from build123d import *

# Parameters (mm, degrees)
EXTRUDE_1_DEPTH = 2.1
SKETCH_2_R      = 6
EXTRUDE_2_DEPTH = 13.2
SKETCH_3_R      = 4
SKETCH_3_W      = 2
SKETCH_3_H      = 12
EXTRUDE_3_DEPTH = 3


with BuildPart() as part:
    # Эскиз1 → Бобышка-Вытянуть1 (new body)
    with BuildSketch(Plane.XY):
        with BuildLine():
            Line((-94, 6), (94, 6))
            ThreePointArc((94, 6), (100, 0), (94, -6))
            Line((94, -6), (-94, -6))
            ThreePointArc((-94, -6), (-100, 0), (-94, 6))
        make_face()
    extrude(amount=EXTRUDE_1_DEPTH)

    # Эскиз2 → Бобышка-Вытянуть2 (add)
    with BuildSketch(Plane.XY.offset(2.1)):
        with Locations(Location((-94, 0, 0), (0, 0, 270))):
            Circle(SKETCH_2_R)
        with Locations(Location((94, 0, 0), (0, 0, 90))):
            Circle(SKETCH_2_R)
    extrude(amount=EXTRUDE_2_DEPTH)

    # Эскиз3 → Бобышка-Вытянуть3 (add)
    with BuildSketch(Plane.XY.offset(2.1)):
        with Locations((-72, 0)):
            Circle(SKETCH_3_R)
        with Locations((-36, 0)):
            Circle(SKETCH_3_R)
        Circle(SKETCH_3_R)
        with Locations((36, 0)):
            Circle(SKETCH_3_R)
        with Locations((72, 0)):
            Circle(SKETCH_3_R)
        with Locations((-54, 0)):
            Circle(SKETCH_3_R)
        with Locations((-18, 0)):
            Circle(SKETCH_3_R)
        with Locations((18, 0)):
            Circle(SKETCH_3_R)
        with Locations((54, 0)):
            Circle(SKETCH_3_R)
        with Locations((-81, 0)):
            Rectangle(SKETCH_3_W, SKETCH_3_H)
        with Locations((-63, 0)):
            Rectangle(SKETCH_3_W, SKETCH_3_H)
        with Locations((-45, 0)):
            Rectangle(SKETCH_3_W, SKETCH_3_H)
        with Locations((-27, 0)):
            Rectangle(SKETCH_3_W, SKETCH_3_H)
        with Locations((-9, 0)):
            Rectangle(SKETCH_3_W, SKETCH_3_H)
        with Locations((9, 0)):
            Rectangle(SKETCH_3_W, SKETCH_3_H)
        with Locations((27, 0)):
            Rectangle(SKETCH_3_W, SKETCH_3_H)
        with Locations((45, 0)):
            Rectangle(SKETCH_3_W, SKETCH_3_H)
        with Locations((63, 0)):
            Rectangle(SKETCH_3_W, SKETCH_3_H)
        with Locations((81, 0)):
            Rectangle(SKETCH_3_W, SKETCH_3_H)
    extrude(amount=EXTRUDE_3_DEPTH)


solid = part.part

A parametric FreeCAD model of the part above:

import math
import FreeCAD as App
import Part
import Sketcher

doc = App.newDocument("Part")
body = doc.addObject("PartDesign::Body", "Body")

sketch1 = body.newObject("Sketcher::SketchObject", "Sketch")
sketch1.AttachmentSupport = (doc.getObject("XY_Plane"), [""])
sketch1.MapMode = "FlatFace"
sketch1.addGeometry([
    Part.LineSegment(App.Vector(94, 6, 0), App.Vector(-94, 6, 0)),
    Part.ArcOfCircle(Part.Circle(App.Vector(-94, 0, 0), App.Vector(0, 0, 1), 6), math.radians(90), math.radians(270)),
    Part.LineSegment(App.Vector(-94, -6, 0), App.Vector(94, -6, 0)),
    Part.ArcOfCircle(Part.Circle(App.Vector(94, 0, 0), App.Vector(0, 0, 1), 6), math.radians(-90), math.radians(90)),
], False)
sketch1.addConstraint([
    Sketcher.Constraint("Tangent", 0, 2, 1, 1),
    Sketcher.Constraint("Tangent", 1, 2, 2, 1),
    Sketcher.Constraint("Tangent", 2, 2, 3, 1),
    Sketcher.Constraint("Tangent", 3, 2, 0, 1),
    Sketcher.Constraint("Horizontal", 0),
    Sketcher.Constraint("Horizontal", 2),
    Sketcher.Constraint("Symmetric", 1, 3, 3, 3, -1, 1),
    Sketcher.Constraint("Radius", 1, 6.0),
    Sketcher.Constraint("DistanceX", 0, 2, 0, 1, 188.0),
])
pad1 = body.newObject("PartDesign::Pad", "Pad")
pad1.Profile = sketch1
pad1.Length = 2.1

sketch2 = body.newObject("Sketcher::SketchObject", "Sketch001")
sketch2.AttachmentSupport = (doc.getObject("XY_Plane"), [""])
sketch2.MapMode = "FlatFace"
sketch2.AttachmentOffset = App.Placement(App.Vector(0, 0, 2.1), App.Rotation())
sketch2.addGeometry([
    Part.Circle(App.Vector(-94, 0, 0), App.Vector(0, 0, 1), 6),
    Part.Circle(App.Vector(94, 0, 0), App.Vector(0, 0, 1), 6),
], False)
sketch2.addConstraint([
    Sketcher.Constraint("Equal", 0, 1),
    Sketcher.Constraint("Symmetric", 0, 3, 1, 3, -1, 1),
    Sketcher.Constraint("PointOnObject", 0, 3, -1),
    Sketcher.Constraint("Diameter", 0, 12.0),
    Sketcher.Constraint("DistanceX", 0, 3, -1, 1, 94.0),
])
pad2 = body.newObject("PartDesign::Pad", "Pad001")
pad2.Profile = sketch2
pad2.Length = 13.2

sketch3 = body.newObject("Sketcher::SketchObject", "Sketch002")
sketch3.AttachmentSupport = (doc.getObject("XY_Plane"), [""])
sketch3.MapMode = "FlatFace"
sketch3.AttachmentOffset = App.Placement(App.Vector(0, 0, 2.1), App.Rotation())
sketch3.addGeometry([
    Part.Circle(App.Vector(-72, 0, 0), App.Vector(0, 0, 1), 4),
    Part.Circle(App.Vector(-36, 0, 0), App.Vector(0, 0, 1), 4),
    Part.Circle(App.Vector(0, 0, 0), App.Vector(0, 0, 1), 4),
    Part.Circle(App.Vector(36, 0, 0), App.Vector(0, 0, 1), 4),
    Part.Circle(App.Vector(72, 0, 0), App.Vector(0, 0, 1), 4),
    Part.Circle(App.Vector(-54, 0, 0), App.Vector(0, 0, 1), 4),
    Part.Circle(App.Vector(-18, 0, 0), App.Vector(0, 0, 1), 4),
    Part.Circle(App.Vector(18, 0, 0), App.Vector(0, 0, 1), 4),
    Part.Circle(App.Vector(54, 0, 0), App.Vector(0, 0, 1), 4),
    Part.LineSegment(App.Vector(-82, 6, 0), App.Vector(-82, -6, 0)),
    Part.LineSegment(App.Vector(-82, -6, 0), App.Vector(-80, -6, 0)),
    Part.LineSegment(App.Vector(-80, -6, 0), App.Vector(-80, 6, 0)),
    Part.LineSegment(App.Vector(-80, 6, 0), App.Vector(-82, 6, 0)),
    Part.LineSegment(App.Vector(-64, 6, 0), App.Vector(-64, -6, 0)),
    Part.LineSegment(App.Vector(-64, -6, 0), App.Vector(-62, -6, 0)),
    Part.LineSegment(App.Vector(-62, -6, 0), App.Vector(-62, 6, 0)),
    Part.LineSegment(App.Vector(-62, 6, 0), App.Vector(-64, 6, 0)),
    Part.LineSegment(App.Vector(-46, 6, 0), App.Vector(-46, -6, 0)),
    Part.LineSegment(App.Vector(-46, -6, 0), App.Vector(-44, -6, 0)),
    Part.LineSegment(App.Vector(-44, -6, 0), App.Vector(-44, 6, 0)),
    Part.LineSegment(App.Vector(-44, 6, 0), App.Vector(-46, 6, 0)),
    Part.LineSegment(App.Vector(-28, 6, 0), App.Vector(-28, -6, 0)),
    Part.LineSegment(App.Vector(-28, -6, 0), App.Vector(-26, -6, 0)),
    Part.LineSegment(App.Vector(-26, -6, 0), App.Vector(-26, 6, 0)),
    Part.LineSegment(App.Vector(-26, 6, 0), App.Vector(-28, 6, 0)),
    Part.LineSegment(App.Vector(-10, 6, 0), App.Vector(-10, -6, 0)),
    Part.LineSegment(App.Vector(-10, -6, 0), App.Vector(-8, -6, 0)),
    Part.LineSegment(App.Vector(-8, -6, 0), App.Vector(-8, 6, 0)),
    Part.LineSegment(App.Vector(-8, 6, 0), App.Vector(-10, 6, 0)),
    Part.LineSegment(App.Vector(8, 6, 0), App.Vector(8, -6, 0)),
    Part.LineSegment(App.Vector(8, -6, 0), App.Vector(10, -6, 0)),
    Part.LineSegment(App.Vector(10, -6, 0), App.Vector(10, 6, 0)),
    Part.LineSegment(App.Vector(10, 6, 0), App.Vector(8, 6, 0)),
    Part.LineSegment(App.Vector(26, 6, 0), App.Vector(26, -6, 0)),
    Part.LineSegment(App.Vector(26, -6, 0), App.Vector(28, -6, 0)),
    Part.LineSegment(App.Vector(28, -6, 0), App.Vector(28, 6, 0)),
    Part.LineSegment(App.Vector(28, 6, 0), App.Vector(26, 6, 0)),
    Part.LineSegment(App.Vector(44, 6, 0), App.Vector(44, -6, 0)),
    Part.LineSegment(App.Vector(44, -6, 0), App.Vector(46, -6, 0)),
    Part.LineSegment(App.Vector(46, -6, 0), App.Vector(46, 6, 0)),
    Part.LineSegment(App.Vector(46, 6, 0), App.Vector(44, 6, 0)),
    Part.LineSegment(App.Vector(62, 6, 0), App.Vector(62, -6, 0)),
    Part.LineSegment(App.Vector(62, -6, 0), App.Vector(64, -6, 0)),
    Part.LineSegment(App.Vector(64, -6, 0), App.Vector(64, 6, 0)),
    Part.LineSegment(App.Vector(64, 6, 0), App.Vector(62, 6, 0)),
    Part.LineSegment(App.Vector(80, 6, 0), App.Vector(80, -6, 0)),
    Part.LineSegment(App.Vector(80, -6, 0), App.Vector(82, -6, 0)),
    Part.LineSegment(App.Vector(82, -6, 0), App.Vector(82, 6, 0)),
    Part.LineSegment(App.Vector(82, 6, 0), App.Vector(80, 6, 0)),
], False)
sketch3.addConstraint([
    Sketcher.Constraint("Coincident", 9, 2, 10, 1),
    Sketcher.Constraint("Coincident", 10, 2, 11, 1),
    Sketcher.Constraint("Coincident", 11, 2, 12, 1),
    Sketcher.Constraint("Coincident", 12, 2, 9, 1),
    Sketcher.Constraint("Coincident", 13, 2, 14, 1),
    Sketcher.Constraint("Coincident", 14, 2, 15, 1),
    Sketcher.Constraint("Coincident", 15, 2, 16, 1),
    Sketcher.Constraint("Coincident", 16, 2, 13, 1),
    Sketcher.Constraint("Coincident", 17, 2, 18, 1),
    Sketcher.Constraint("Coincident", 18, 2, 19, 1),
    Sketcher.Constraint("Coincident", 19, 2, 20, 1),
    Sketcher.Constraint("Coincident", 20, 2, 17, 1),
    Sketcher.Constraint("Coincident", 21, 2, 22, 1),
    Sketcher.Constraint("Coincident", 22, 2, 23, 1),
    Sketcher.Constraint("Coincident", 23, 2, 24, 1),
    Sketcher.Constraint("Coincident", 24, 2, 21, 1),
    Sketcher.Constraint("Coincident", 25, 2, 26, 1),
    Sketcher.Constraint("Coincident", 26, 2, 27, 1),
    Sketcher.Constraint("Coincident", 27, 2, 28, 1),
    Sketcher.Constraint("Coincident", 28, 2, 25, 1),
    Sketcher.Constraint("Coincident", 29, 2, 30, 1),
    Sketcher.Constraint("Coincident", 30, 2, 31, 1),
    Sketcher.Constraint("Coincident", 31, 2, 32, 1),
    Sketcher.Constraint("Coincident", 32, 2, 29, 1),
    Sketcher.Constraint("Coincident", 33, 2, 34, 1),
    Sketcher.Constraint("Coincident", 34, 2, 35, 1),
    Sketcher.Constraint("Coincident", 35, 2, 36, 1),
    Sketcher.Constraint("Coincident", 36, 2, 33, 1),
    Sketcher.Constraint("Coincident", 37, 2, 38, 1),
    Sketcher.Constraint("Coincident", 38, 2, 39, 1),
    Sketcher.Constraint("Coincident", 39, 2, 40, 1),
    Sketcher.Constraint("Coincident", 40, 2, 37, 1),
    Sketcher.Constraint("Coincident", 41, 2, 42, 1),
    Sketcher.Constraint("Coincident", 42, 2, 43, 1),
    Sketcher.Constraint("Coincident", 43, 2, 44, 1),
    Sketcher.Constraint("Coincident", 44, 2, 41, 1),
    Sketcher.Constraint("Coincident", 45, 2, 46, 1),
    Sketcher.Constraint("Coincident", 46, 2, 47, 1),
    Sketcher.Constraint("Coincident", 47, 2, 48, 1),
    Sketcher.Constraint("Coincident", 48, 2, 45, 1),
    Sketcher.Constraint("Vertical", 9),
    Sketcher.Constraint("Horizontal", 10),
    Sketcher.Constraint("Vertical", 11),
    Sketcher.Constraint("Horizontal", 12),
    Sketcher.Constraint("Vertical", 13),
    Sketcher.Constraint("Horizontal", 14),
    Sketcher.Constraint("Vertical", 15),
    Sketcher.Constraint("Horizontal", 16),
    Sketcher.Constraint("Vertical", 17),
    Sketcher.Constraint("Horizontal", 18),
    Sketcher.Constraint("Vertical", 19),
    Sketcher.Constraint("Horizontal", 20),
    Sketcher.Constraint("Vertical", 21),
    Sketcher.Constraint("Horizontal", 22),
    Sketcher.Constraint("Vertical", 23),
    Sketcher.Constraint("Horizontal", 24),
    Sketcher.Constraint("Vertical", 25),
    Sketcher.Constraint("Horizontal", 26),
    Sketcher.Constraint("Vertical", 27),
    Sketcher.Constraint("Horizontal", 28),
    Sketcher.Constraint("Vertical", 29),
    Sketcher.Constraint("Horizontal", 30),
    Sketcher.Constraint("Vertical", 31),
    Sketcher.Constraint("Horizontal", 32),
    Sketcher.Constraint("Vertical", 33),
    Sketcher.Constraint("Horizontal", 34),
    Sketcher.Constraint("Vertical", 35),
    Sketcher.Constraint("Horizontal", 36),
    Sketcher.Constraint("Vertical", 37),
    Sketcher.Constraint("Horizontal", 38),
    Sketcher.Constraint("Vertical", 39),
    Sketcher.Constraint("Horizontal", 40),
    Sketcher.Constraint("Vertical", 41),
    Sketcher.Constraint("Horizontal", 42),
    Sketcher.Constraint("Vertical", 43),
    Sketcher.Constraint("Horizontal", 44),
    Sketcher.Constraint("Vertical", 45),
    Sketcher.Constraint("Horizontal", 46),
    Sketcher.Constraint("Vertical", 47),
    Sketcher.Constraint("Horizontal", 48),
    Sketcher.Constraint("Coincident", 2, 3, -1, 1),
    Sketcher.Constraint("Equal", 0, 1),
    Sketcher.Constraint("Equal", 1, 2),
    Sketcher.Constraint("Equal", 2, 3),
    Sketcher.Constraint("Equal", 3, 4),
    Sketcher.Constraint("Equal", 4, 5),
    Sketcher.Constraint("Equal", 5, 6),
    Sketcher.Constraint("Equal", 6, 7),
    Sketcher.Constraint("Equal", 7, 8),
    Sketcher.Constraint("Symmetric", 1, 3, 3, 3, -1, 1),
    Sketcher.Constraint("Symmetric", 0, 3, 4, 3, -1, 1),
    Sketcher.Constraint("Symmetric", 6, 3, 7, 3, -1, 1),
    Sketcher.Constraint("Symmetric", 5, 3, 8, 3, -1, 1),
    Sketcher.Constraint("Symmetric", 27, 2, 29, 2, -1, 1),
    Sketcher.Constraint("Symmetric", 25, 2, 31, 2, -1, 1),
    Sketcher.Constraint("Symmetric", 23, 2, 33, 2, -1, 1),
    Sketcher.Constraint("Symmetric", 21, 2, 35, 2, -1, 1),
    Sketcher.Constraint("Symmetric", 19, 2, 37, 2, -1, 1),
    Sketcher.Constraint("Symmetric", 17, 2, 39, 2, -1, 1),
    Sketcher.Constraint("Symmetric", 15, 2, 41, 2, -1, 1),
    Sketcher.Constraint("Symmetric", 13, 2, 43, 2, -1, 1),
    Sketcher.Constraint("Symmetric", 11, 2, 45, 2, -1, 1),
    Sketcher.Constraint("Symmetric", 9, 2, 47, 2, -1, 1),
    Sketcher.Constraint("PointOnObject", 0, 3, -1),
    Sketcher.Constraint("PointOnObject", 1, 3, -1),
    Sketcher.Constraint("PointOnObject", 5, 3, -1),
    Sketcher.Constraint("PointOnObject", 6, 3, -1),
    Sketcher.Constraint("Horizontal", 10, 2, 13, 2),
    Sketcher.Constraint("Horizontal", 12, 2, 15, 2),
    Sketcher.Constraint("Horizontal", 14, 2, 17, 2),
    Sketcher.Constraint("Horizontal", 16, 2, 19, 2),
    Sketcher.Constraint("Horizontal", 18, 2, 21, 2),
    Sketcher.Constraint("Horizontal", 20, 2, 23, 2),
    Sketcher.Constraint("Horizontal", 22, 2, 25, 2),
    Sketcher.Constraint("Horizontal", 24, 2, 27, 2),
    Sketcher.Constraint("Horizontal", 26, 2, 29, 2),
    Sketcher.Constraint("Equal", 12, 14),
    Sketcher.Constraint("Equal", 16, 18),
    Sketcher.Constraint("Equal", 20, 22),
    Sketcher.Constraint("Equal", 24, 26),
    Sketcher.Constraint("Diameter", 0, 8.0),
    Sketcher.Constraint("DistanceX", 10, 1, 10, 2, 2.0),
    Sketcher.Constraint("DistanceY", 9, 2, 9, 1, 12.0),
    Sketcher.Constraint("DistanceX", 0, 3, -1, 1, 72.0),
    Sketcher.Constraint("DistanceX", 1, 3, -1, 1, 36.0),
    Sketcher.Constraint("DistanceX", 5, 3, -1, 1, 54.0),
    Sketcher.Constraint("DistanceX", 6, 3, -1, 1, 18.0),
    Sketcher.Constraint("DistanceX", 9, 2, -1, 1, 82.0),
    Sketcher.Constraint("DistanceX", 13, 2, -1, 1, 64.0),
    Sketcher.Constraint("DistanceX", 17, 2, -1, 1, 46.0),
    Sketcher.Constraint("DistanceX", 21, 2, -1, 1, 28.0),
    Sketcher.Constraint("DistanceX", 25, 2, -1, 1, 10.0),
])
pad3 = body.newObject("PartDesign::Pad", "Pad002")
pad3.Profile = sketch3
pad3.Length = 3

doc.recompute()
